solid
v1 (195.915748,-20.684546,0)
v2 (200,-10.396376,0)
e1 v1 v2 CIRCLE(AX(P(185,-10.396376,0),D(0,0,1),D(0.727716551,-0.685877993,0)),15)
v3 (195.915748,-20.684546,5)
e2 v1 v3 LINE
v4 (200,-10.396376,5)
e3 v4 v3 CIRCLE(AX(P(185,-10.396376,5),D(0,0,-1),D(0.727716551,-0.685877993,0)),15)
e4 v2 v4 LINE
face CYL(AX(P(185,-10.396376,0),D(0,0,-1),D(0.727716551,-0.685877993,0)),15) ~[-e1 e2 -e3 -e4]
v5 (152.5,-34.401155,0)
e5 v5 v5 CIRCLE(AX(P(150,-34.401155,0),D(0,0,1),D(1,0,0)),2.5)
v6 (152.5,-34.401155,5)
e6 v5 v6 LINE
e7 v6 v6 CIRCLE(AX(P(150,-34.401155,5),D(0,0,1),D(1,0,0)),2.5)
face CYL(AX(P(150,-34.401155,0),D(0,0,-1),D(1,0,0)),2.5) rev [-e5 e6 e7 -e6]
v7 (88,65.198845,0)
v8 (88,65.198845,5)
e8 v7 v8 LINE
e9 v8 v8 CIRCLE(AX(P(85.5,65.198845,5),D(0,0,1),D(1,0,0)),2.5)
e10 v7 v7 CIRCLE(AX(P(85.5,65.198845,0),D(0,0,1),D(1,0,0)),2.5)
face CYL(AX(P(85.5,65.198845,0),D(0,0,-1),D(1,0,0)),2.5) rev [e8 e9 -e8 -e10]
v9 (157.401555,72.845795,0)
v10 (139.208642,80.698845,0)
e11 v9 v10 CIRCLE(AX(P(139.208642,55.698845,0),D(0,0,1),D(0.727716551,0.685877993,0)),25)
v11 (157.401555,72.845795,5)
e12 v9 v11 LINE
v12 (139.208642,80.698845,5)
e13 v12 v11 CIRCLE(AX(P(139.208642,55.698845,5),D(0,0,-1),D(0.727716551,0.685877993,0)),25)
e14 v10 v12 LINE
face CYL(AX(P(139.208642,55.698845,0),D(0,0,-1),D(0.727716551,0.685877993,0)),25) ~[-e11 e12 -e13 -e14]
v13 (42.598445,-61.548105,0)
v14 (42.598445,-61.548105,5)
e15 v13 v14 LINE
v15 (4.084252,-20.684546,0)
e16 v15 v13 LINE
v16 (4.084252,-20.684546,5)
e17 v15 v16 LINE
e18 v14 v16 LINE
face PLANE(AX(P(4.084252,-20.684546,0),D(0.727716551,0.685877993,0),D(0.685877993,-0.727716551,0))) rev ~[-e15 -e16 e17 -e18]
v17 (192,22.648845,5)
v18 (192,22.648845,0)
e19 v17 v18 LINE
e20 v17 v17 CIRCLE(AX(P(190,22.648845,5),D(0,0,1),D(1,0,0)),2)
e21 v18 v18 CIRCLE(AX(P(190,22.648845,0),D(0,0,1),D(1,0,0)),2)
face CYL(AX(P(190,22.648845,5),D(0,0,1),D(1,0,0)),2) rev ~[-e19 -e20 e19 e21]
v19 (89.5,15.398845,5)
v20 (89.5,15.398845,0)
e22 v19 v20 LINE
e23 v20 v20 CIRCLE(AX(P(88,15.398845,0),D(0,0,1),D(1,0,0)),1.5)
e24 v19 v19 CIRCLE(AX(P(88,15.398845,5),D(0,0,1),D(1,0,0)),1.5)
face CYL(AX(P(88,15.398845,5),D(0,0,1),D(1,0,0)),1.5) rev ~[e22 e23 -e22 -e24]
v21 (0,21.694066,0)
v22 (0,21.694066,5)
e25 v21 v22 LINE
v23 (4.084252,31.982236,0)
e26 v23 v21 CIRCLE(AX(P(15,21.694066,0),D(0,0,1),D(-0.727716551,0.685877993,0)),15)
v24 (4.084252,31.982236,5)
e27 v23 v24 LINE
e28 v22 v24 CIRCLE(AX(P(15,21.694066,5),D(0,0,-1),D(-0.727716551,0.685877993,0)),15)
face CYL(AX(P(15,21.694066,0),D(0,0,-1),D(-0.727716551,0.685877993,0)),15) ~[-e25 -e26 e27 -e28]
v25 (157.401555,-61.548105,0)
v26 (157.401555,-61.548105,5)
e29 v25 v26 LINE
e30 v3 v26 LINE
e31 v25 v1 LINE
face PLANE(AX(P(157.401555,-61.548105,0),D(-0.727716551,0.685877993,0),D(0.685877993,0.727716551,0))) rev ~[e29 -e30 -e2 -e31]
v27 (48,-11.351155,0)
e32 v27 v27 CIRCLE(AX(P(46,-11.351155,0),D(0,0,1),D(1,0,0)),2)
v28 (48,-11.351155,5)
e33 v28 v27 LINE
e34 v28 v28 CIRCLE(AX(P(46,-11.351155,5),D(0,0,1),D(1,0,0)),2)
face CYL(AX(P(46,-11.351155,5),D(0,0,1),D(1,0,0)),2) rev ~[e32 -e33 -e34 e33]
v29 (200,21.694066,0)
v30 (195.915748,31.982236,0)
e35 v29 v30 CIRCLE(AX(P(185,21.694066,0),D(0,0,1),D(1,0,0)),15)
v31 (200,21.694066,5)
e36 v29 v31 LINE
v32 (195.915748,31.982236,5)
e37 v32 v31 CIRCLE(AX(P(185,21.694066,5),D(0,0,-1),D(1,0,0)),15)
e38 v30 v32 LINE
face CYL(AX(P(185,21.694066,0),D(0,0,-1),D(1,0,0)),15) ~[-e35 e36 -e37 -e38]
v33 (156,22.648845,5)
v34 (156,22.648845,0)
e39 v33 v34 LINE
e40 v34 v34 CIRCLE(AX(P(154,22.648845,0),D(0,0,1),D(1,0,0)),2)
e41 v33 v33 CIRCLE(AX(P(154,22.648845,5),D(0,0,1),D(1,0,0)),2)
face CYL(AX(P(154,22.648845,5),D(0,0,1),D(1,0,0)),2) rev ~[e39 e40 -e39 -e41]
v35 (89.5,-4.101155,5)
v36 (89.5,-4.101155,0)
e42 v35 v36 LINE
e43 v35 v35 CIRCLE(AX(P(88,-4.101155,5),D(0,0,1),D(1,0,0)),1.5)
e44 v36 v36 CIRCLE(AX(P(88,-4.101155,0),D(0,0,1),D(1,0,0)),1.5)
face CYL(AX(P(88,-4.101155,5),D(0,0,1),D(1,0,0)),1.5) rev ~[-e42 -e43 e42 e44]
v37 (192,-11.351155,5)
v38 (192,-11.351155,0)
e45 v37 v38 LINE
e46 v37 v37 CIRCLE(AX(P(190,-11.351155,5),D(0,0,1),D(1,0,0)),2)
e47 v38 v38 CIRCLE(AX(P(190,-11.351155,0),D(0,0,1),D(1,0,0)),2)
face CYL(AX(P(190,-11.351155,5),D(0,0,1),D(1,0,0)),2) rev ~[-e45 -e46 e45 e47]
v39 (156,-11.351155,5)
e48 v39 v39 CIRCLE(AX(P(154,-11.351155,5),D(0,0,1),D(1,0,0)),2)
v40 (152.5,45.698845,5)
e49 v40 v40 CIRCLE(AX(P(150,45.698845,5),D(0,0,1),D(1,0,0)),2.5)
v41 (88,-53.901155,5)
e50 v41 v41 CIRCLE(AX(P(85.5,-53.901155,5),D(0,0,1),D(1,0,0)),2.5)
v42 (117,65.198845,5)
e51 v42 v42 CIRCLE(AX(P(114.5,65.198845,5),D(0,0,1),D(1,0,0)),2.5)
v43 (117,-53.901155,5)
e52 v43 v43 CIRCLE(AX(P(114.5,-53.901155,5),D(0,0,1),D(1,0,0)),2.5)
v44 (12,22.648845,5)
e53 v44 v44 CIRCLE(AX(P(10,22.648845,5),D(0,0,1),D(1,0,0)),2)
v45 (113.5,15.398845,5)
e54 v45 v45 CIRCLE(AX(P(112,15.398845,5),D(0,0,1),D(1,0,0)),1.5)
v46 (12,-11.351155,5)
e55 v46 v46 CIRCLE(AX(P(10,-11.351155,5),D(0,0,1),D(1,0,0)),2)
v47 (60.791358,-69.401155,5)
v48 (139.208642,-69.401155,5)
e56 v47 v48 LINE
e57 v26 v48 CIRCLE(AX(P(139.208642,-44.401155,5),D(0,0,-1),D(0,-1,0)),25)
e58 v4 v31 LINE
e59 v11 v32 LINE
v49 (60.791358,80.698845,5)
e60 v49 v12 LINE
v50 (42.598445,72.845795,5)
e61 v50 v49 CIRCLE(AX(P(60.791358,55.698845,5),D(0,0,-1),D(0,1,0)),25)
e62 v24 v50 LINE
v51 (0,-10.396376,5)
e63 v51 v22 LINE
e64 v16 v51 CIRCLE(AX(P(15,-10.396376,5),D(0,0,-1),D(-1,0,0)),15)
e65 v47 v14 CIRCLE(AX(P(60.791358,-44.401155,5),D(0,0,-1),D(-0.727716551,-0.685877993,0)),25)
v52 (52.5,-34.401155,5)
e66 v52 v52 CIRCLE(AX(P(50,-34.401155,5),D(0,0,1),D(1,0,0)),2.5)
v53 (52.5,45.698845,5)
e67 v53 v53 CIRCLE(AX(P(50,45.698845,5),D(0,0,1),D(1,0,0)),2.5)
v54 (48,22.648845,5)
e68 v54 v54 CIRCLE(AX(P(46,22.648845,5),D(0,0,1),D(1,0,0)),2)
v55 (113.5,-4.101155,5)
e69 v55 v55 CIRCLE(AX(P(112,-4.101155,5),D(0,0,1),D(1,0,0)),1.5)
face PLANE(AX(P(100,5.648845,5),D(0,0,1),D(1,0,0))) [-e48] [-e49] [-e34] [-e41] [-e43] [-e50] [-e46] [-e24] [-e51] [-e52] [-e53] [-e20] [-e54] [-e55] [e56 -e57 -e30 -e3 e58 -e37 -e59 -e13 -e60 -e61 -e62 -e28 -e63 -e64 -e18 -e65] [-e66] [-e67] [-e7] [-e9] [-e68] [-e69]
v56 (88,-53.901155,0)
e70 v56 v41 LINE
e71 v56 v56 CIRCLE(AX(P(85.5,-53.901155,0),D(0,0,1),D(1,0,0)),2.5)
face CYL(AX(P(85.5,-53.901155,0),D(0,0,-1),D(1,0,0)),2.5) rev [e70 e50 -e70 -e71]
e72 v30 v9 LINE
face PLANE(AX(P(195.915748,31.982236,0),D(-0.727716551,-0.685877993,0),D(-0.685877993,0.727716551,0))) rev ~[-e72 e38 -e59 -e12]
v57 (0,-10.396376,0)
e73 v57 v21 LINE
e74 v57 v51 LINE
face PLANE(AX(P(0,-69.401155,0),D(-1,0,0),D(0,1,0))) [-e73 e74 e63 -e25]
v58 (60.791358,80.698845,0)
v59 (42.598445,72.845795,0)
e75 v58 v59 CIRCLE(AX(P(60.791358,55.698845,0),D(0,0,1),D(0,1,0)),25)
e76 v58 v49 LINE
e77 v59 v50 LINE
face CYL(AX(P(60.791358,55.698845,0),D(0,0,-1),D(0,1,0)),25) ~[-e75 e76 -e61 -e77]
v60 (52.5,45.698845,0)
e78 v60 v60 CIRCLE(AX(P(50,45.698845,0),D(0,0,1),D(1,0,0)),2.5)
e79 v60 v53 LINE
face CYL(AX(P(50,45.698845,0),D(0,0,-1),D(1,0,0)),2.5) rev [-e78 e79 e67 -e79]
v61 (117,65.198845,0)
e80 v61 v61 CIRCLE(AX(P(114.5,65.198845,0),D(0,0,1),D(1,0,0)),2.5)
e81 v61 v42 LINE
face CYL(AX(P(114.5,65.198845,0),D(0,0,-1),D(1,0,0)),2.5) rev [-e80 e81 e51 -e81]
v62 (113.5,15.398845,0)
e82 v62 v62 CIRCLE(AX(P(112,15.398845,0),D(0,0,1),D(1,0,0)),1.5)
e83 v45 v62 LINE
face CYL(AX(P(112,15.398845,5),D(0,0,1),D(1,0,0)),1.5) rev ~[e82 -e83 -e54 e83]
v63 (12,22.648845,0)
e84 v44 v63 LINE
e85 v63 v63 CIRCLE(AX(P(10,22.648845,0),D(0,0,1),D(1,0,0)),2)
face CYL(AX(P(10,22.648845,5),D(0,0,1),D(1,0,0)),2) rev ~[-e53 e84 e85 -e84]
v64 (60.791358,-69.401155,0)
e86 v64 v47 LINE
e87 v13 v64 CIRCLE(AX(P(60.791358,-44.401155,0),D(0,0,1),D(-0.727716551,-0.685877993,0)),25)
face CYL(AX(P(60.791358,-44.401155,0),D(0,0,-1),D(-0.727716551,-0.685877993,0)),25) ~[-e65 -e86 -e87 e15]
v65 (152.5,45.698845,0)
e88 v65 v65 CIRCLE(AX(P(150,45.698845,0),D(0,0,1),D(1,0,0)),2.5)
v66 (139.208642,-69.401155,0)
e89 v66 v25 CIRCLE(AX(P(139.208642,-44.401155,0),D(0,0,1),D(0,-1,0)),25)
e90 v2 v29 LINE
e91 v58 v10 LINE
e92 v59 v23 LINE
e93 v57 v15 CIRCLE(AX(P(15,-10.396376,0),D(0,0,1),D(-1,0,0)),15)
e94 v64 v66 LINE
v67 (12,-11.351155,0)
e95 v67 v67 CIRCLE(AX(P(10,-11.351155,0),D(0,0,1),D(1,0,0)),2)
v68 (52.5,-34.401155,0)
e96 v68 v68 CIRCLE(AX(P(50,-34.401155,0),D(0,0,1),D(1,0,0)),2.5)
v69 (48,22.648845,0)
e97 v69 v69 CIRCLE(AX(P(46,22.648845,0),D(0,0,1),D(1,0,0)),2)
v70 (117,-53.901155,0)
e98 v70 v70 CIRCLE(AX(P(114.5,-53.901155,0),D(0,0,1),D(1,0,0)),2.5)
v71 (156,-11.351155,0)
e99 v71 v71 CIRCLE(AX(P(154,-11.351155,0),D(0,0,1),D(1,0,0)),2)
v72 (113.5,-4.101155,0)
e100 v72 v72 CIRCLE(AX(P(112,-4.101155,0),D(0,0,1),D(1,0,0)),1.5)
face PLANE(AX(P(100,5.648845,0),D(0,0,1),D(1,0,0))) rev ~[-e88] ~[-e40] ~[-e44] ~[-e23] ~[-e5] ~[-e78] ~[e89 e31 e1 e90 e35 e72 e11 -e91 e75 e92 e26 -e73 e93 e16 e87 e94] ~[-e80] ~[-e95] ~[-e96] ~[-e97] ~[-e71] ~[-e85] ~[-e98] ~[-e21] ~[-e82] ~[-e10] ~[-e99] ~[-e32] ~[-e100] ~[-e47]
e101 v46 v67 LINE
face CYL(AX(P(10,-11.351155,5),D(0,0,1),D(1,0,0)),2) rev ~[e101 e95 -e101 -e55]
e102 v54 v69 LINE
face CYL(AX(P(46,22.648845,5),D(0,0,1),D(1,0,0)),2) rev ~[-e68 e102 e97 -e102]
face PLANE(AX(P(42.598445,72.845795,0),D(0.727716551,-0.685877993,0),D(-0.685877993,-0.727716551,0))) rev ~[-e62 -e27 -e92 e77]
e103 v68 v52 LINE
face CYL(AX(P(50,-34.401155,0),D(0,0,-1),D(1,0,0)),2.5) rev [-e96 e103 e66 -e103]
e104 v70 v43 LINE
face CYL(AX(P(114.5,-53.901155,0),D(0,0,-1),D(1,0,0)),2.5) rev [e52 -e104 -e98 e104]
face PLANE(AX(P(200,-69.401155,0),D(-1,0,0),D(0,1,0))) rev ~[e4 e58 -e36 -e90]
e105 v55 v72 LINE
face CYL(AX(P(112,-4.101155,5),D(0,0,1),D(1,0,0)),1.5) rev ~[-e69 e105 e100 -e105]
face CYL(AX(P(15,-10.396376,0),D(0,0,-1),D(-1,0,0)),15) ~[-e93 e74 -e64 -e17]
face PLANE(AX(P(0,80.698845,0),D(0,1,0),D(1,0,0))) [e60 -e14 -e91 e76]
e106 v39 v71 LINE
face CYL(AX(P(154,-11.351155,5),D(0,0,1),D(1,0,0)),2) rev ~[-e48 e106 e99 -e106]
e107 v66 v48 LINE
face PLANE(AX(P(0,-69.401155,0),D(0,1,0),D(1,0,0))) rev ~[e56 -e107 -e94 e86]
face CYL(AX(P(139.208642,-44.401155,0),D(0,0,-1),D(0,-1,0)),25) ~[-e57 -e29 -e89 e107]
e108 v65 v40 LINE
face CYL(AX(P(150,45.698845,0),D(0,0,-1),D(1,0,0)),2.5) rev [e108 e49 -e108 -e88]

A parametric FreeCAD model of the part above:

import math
import FreeCAD as App
import Part
import Sketcher
from FreeCAD import Vector

doc = App.newDocument("Part")
body = doc.addObject("PartDesign::Body", "Body")

# Sketch on XY plane
sketch1 = doc.addObject("Sketcher::SketchObject", "Sketch")
body.addObject(sketch1)
sketch1.AttachmentSupport = (doc.XY_Plane, [""])
sketch1.MapMode = "FlatFace"
sketch1.addGeometry([
    Part.LineSegment(Vector(0, 80.7, 0), Vector(0, -69.4, 0)),  # 0
    Part.LineSegment(Vector(0, -69.4, 0), Vector(200, -69.4, 0)),  # 1
    Part.LineSegment(Vector(200, -69.4, 0), Vector(200, 80.7, 0)),  # 2
    Part.LineSegment(Vector(200, 80.7, 0), Vector(0, 80.7, 0)),  # 3
    Part.Circle(Vector(50, -34.4, 0), Vector(0, 0, 1), 2.5),  # 4
    Part.Circle(Vector(85.5, -53.9, 0), Vector(0, 0, 1), 2.5),  # 5
    Part.Circle(Vector(114.5, -53.9, 0), Vector(0, 0, 1), 2.5),  # 6
    Part.Circle(Vector(150, -34.4, 0), Vector(0, 0, 1), 2.5),  # 7
    Part.Circle(Vector(50, 45.7, 0), Vector(0, 0, 1), 2.5),  # 8
    Part.Circle(Vector(85.5, 65.2, 0), Vector(0, 0, 1), 2.5),  # 9
    Part.Circle(Vector(114.5, 65.2, 0), Vector(0, 0, 1), 2.5),  # 10
    Part.Circle(Vector(150, 45.7, 0), Vector(0, 0, 1), 2.5),  # 11
], False)
sketch1.addConstraint([
    Sketcher.Constraint("Coincident", 0, 2, 1, 1),
    Sketcher.Constraint("Coincident", 1, 2, 2, 1),
    Sketcher.Constraint("Coincident", 2, 2, 3, 1),
    Sketcher.Constraint("Coincident", 3, 2, 0, 1),
    Sketcher.Constraint("Vertical", 0),
    Sketcher.Constraint("Horizontal", 1),
    Sketcher.Constraint("Vertical", 2),
    Sketcher.Constraint("Horizontal", 3),
    Sketcher.Constraint("Equal", 4, 5),
    Sketcher.Constraint("Equal", 5, 6),
    Sketcher.Constraint("Equal", 6, 7),
    Sketcher.Constraint("Equal", 7, 8),
    Sketcher.Constraint("Equal", 8, 9),
    Sketcher.Constraint("Equal", 9, 10),
    Sketcher.Constraint("Equal", 10, 11),
    Sketcher.Constraint("PointOnObject", 0, 2, -2),
    Sketcher.Constraint("Horizontal", 5, 3, 6, 3),
    Sketcher.Constraint("Horizontal", 4, 3, 7, 3),
    Sketcher.Constraint("Horizontal", 9, 3, 10, 3),
    Sketcher.Constraint("Horizontal", 8, 3, 11, 3),
    Sketcher.Constraint("Vertical", 4, 3, 8, 3),
    Sketcher.Constraint("Vertical", 5, 3, 9, 3),
    Sketcher.Constraint("Vertical", 6, 3, 10, 3),
    Sketcher.Constraint("Vertical", 7, 3, 11, 3),
    Sketcher.Constraint("Diameter", 4, 5.0),
    Sketcher.Constraint("DistanceX", 1, 1, 1, 2, 200.0),
    Sketcher.Constraint("DistanceY", 0, 2, 0, 1, 150.1),
    Sketcher.Constraint("DistanceX", -1, 1, 4, 3, 50.0),
    Sketcher.Constraint("DistanceX", -1, 1, 7, 3, 150.0),
    Sketcher.Constraint("DistanceX", 5, 3, 6, 3, 29.0),
    Sketcher.Constraint("DistanceY", 0, 2, 4, 3, 35.0),
    Sketcher.Constraint("DistanceY", 11, 3, 2, 2, 35.0),
    Sketcher.Constraint("DistanceX", -1, 1, 5, 3, 85.5),
    Sketcher.Constraint("DistanceY", 5, 3, 4, 3, 19.5),
    Sketcher.Constraint("DistanceY", 8, 3, 9, 3, 19.5),
    Sketcher.Constraint("DistanceY", 4, 3, -1, 1, 34.401155),
])
pad1 = doc.addObject("PartDesign::Pad", "Pad")
body.addObject(pad1)
pad1.Profile = sketch1
pad1.Length = 5

# Sketch on XY plane
sketch2 = doc.addObject("Sketcher::SketchObject", "Sketch001")
body.addObject(sketch2)
sketch2.AttachmentSupport = (doc.XY_Plane, [""])
sketch2.MapMode = "FlatFace"
sketch2.AttachmentOffset = App.Placement(Vector(0, 0, 5), App.Rotation())
sketch2.addGeometry([
    Part.Circle(Vector(88, 15.4, 0), Vector(0, 0, 1), 1.5),  # 0
    Part.Circle(Vector(112, 15.4, 0), Vector(0, 0, 1), 1.5),  # 1
    Part.Circle(Vector(88, -4.1, 0), Vector(0, 0, 1), 1.5),  # 2
    Part.Circle(Vector(112, -4.1, 0), Vector(0, 0, 1), 1.5),  # 3
    Part.Circle(Vector(10, 22.6, 0), Vector(0, 0, 1), 2),  # 4
    Part.Circle(Vector(46, 22.6, 0), Vector(0, 0, 1), 2),  # 5
    Part.Circle(Vector(46, -11.4, 0), Vector(0, 0, 1), 2),  # 6
    Part.Circle(Vector(10, -11.4, 0), Vector(0, 0, 1), 2),  # 7
    Part.Circle(Vector(190, -11.4, 0), Vector(0, 0, 1), 2),  # 8
    Part.Circle(Vector(154, -11.4, 0), Vector(0, 0, 1), 2),  # 9
    Part.Circle(Vector(154, 22.6, 0), Vector(0, 0, 1), 2),  # 10
    Part.Circle(Vector(190, 22.6, 0), Vector(0, 0, 1), 2),  # 11
], False)
sketch2.addConstraint([
    Sketcher.Constraint("Equal", 0, 1),
    Sketcher.Constraint("Equal", 1, 2),
    Sketcher.Constraint("Equal", 2, 3),
    Sketcher.Constraint("Equal", 4, 5),
    Sketcher.Constraint("Equal", 5, 6),
    Sketcher.Constraint("Equal", 6, 7),
    Sketcher.Constraint("Equal", 7, 8),
    Sketcher.Constraint("Equal", 8, 9),
    Sketcher.Constraint("Equal", 9, 10),
    Sketcher.Constraint("Equal", 10, 11),
    Sketcher.Constraint("Horizontal", 0, 3, 1, 3),
    Sketcher.Constraint("Horizontal", 2, 3, 3, 3),
    Sketcher.Constraint("Horizontal", 4, 3, 5, 3),
    Sketcher.Constraint("Horizontal", 6, 3, 7, 3),
    Sketcher.Constraint("Horizontal", 7, 3, 8, 3),
    Sketcher.Constraint("Horizontal", 8, 3, 9, 3),
    Sketcher.Constraint("Horizontal", 5, 3, 10, 3),
    Sketcher.Constraint("Horizontal", 10, 3, 11, 3),
    Sketcher.Constraint("Vertical", 0, 3, 2, 3),
    Sketcher.Constraint("Vertical", 1, 3, 3, 3),
    Sketcher.Constraint("Vertical", 5, 3, 6, 3),
    Sketcher.Constraint("Vertical", 4, 3, 7, 3),
    Sketcher.Constraint("Vertical", 9, 3, 10, 3),
    Sketcher.Constraint("Vertical", 8, 3, 11, 3),
    Sketcher.Constraint("Diameter", 0, 3.0),
    Sketcher.Constraint("Diameter", 4, 4.0),
    Sketcher.Constraint("DistanceX", -1, 1, 0, 3, 88.0),
    Sketcher.Constraint("DistanceX", -1, 1, 1, 3, 112.0),
    Sketcher.Constraint("DistanceX", -1, 1, 4, 3, 10.0),
    Sketcher.Constraint("DistanceX", -1, 1, 5, 3, 46.0),
    Sketcher.Constraint("DistanceX", -1, 1, 8, 3, 190.0),
    Sketcher.Constraint("DistanceX", -1, 1, 9, 3, 154.0),
    Sketcher.Constraint("DistanceY", 6, 3, 5, 3, 34.0),
    Sketcher.Constraint("DistanceY", 2, 3, 0, 3, 19.5),
    Sketcher.Constraint("DistanceY", 0, 3, 4, 3, 7.25),
    Sketcher.Constraint("DistanceY", -1, 1, 0, 3, 15.398845),
])
pocket1 = doc.addObject("PartDesign::Pocket", "Pocket")
body.addObject(pocket1)
pocket1.Profile = sketch2
pocket1.Length = 10

# Sketch on XY plane
sketch3 = doc.addObject("Sketcher::SketchObject", "Sketch002")
body.addObject(sketch3)
sketch3.AttachmentSupport = (doc.XY_Plane, [""])
sketch3.MapMode = "FlatFace"
sketch3.addGeometry([
    Part.LineSegment(Vector(196, 32, 0), Vector(157, 73, 0)),  # 0
    Part.ArcOfCircle(Part.Circle(Vector(139, 56, 0), Vector(0, 0, 1), 25), math.radians(43), math.radians(90)),  # 1
    Part.LineSegment(Vector(139, 81, 0), Vector(200, 81, 0)),  # 2
    Part.LineSegment(Vector(200, 81, 0), Vector(200, 22, 0)),  # 3
    Part.ArcOfCircle(Part.Circle(Vector(185, 22, 0), Vector(0, 0, 1), 15), math.radians(0), math.radians(43)),  # 4
    Part.LineSegment(Vector(0, 81, 0), Vector(61, 81, 0)),  # 5
    Part.ArcOfCircle(Part.Circle(Vector(61, 56, 0), Vector(0, 0, 1), 25), math.radians(90), math.radians(137)),  # 6
    Part.LineSegment(Vector(43, 73, 0), Vector(4, 32, 0)),  # 7
    Part.ArcOfCircle(Part.Circle(Vector(15, 22, 0), Vector(0, 0, 1), 15), math.radians(137), math.radians(180)),  # 8
    Part.LineSegment(Vector(0, 22, 0), Vector(0, 81, 0)),  # 9
    Part.LineSegment(Vector(0, -69, 0), Vector(0, -10, 0)),  # 10
    Part.ArcOfCircle(Part.Circle(Vector(15, -10, 0), Vector(0, 0, 1), 15), math.radians(180), math.radians(223)),  # 11
    Part.LineSegment(Vector(4, -21, 0), Vector(43, -62, 0)),  # 12
    Part.ArcOfCircle(Part.Circle(Vector(61, -44, 0), Vector(0, 0, 1), 25), math.radians(-137), math.radians(-90)),  # 13
    Part.LineSegment(Vector(61, -69, 0), Vector(0, -69, 0)),  # 14
    Part.ArcOfCircle(Part.Circle(Vector(185, -10, 0), Vector(0, 0, 1), 15), math.radians(-43), math.radians(0)),  # 15
    Part.LineSegment(Vector(200, -10, 0), Vector(200, -69, 0)),  # 16
    Part.LineSegment(Vector(200, -69, 0), Vector(139, -69, 0)),  # 17
    Part.ArcOfCircle(Part.Circle(Vector(139, -44, 0), Vector(0, 0, 1), 25), math.radians(-90), math.radians(-43)),  # 18
    Part.LineSegment(Vector(157, -62, 0), Vector(196, -21, 0)),  # 19
], False)
sketch3.addConstraint([
    Sketcher.Constraint("Tangent", 0, 2, 1, 1),
    Sketcher.Constraint("Tangent", 1, 2, 2, 1),
    Sketcher.Constraint("Coincident", 2, 2, 3, 1),
    Sketcher.Constraint("Tangent", 3, 2, 4, 1),
    Sketcher.Constraint("Tangent", 4, 2, 0, 1),
    Sketcher.Constraint("Tangent", 5, 2, 6, 1),
    Sketcher.Constraint("Tangent", 6, 2, 7, 1),
    Sketcher.Constraint("Tangent", 7, 2, 8, 1),
    Sketcher.Constraint("Tangent", 8, 2, 9, 1),
    Sketcher.Constraint("Coincident", 9, 2, 5, 1),
    Sketcher.Constraint("Tangent", 10, 2, 11, 1),
    Sketcher.Constraint("Tangent", 11, 2, 12, 1),
    Sketcher.Constraint("Tangent", 12, 2, 13, 1),
    Sketcher.Constraint("Tangent", 13, 2, 14, 1),
    Sketcher.Constraint("Coincident", 14, 2, 10, 1),
    Sketcher.Constraint("Tangent", 15, 2, 16, 1),
    Sketcher.Constraint("Coincident", 16, 2, 17, 1),
    Sketcher.Constraint("Tangent", 17, 2, 18, 1),
    Sketcher.Constraint("Tangent", 18, 2, 19, 1),
    Sketcher.Constraint("Tangent", 19, 2, 15, 1),
    Sketcher.Constraint("Horizontal", 2),
    Sketcher.Constraint("Vertical", 3),
    Sketcher.Constraint("Horizontal", 5),
    Sketcher.Constraint("Vertical", 9),
    Sketcher.Constraint("Vertical", 10),
    Sketcher.Constraint("Horizontal", 14),
    Sketcher.Constraint("Vertical", 16),
    Sketcher.Constraint("Horizontal", 17),
    Sketcher.Constraint("Equal", 1, 6),
    Sketcher.Constraint("Equal", 4, 8),
    Sketcher.Constraint("Equal", 8, 11),
    Sketcher.Constraint("Equal", 6, 13),
    Sketcher.Constraint("Equal", 11, 15),
    Sketcher.Constraint("Equal", 13, 18),
    Sketcher.Constraint("PointOnObject", 8, 2, -2),
    Sketcher.Constraint("PointOnObject", 10, 2, -2),
    Sketcher.Constraint("Parallel", 0, 12),
    Sketcher.Constraint("Parallel", 7, 19),
    Sketcher.Constraint("Horizontal", 1, 3, 6, 3),
    Sketcher.Constraint("Horizontal", 4, 3, 8, 3),
    Sketcher.Constraint("Horizontal", 11, 3, 15, 3),
    Sketcher.Constraint("Horizontal", 13, 3, 18, 3),
    Sketcher.Constraint("Horizontal", 0, 2, 6, 2),
    Sketcher.Constraint("Vertical", 6, 3, 13, 3),
    Sketcher.Constraint("Vertical", 4, 3, 15, 3),
    Sketcher.Constraint("Radius", 1, 25.0),
    Sketcher.Constraint("Radius", 4, 15.0),
    Sketcher.Constraint("DistanceX", -1, 1, 4, 3, 185.0),
    Sketcher.Constraint("DistanceY", 13, 3, 6, 3, 100.1),
    Sketcher.Constraint("DistanceX", 2, 1, 2, 2, 60.791358),
    Sketcher.Constraint("DistanceY", 3, 2, 3, 1, 59.004779),
    Sketcher.Constraint("DistanceY", -1, 1, 1, 3, 55.698845),
])
pocket2 = doc.addObject("PartDesign::Pocket", "Pocket001")
body.addObject(pocket2)
pocket2.Profile = sketch3
pocket2.Length = 400
pocket2.Reversed = True

doc.recompute()
